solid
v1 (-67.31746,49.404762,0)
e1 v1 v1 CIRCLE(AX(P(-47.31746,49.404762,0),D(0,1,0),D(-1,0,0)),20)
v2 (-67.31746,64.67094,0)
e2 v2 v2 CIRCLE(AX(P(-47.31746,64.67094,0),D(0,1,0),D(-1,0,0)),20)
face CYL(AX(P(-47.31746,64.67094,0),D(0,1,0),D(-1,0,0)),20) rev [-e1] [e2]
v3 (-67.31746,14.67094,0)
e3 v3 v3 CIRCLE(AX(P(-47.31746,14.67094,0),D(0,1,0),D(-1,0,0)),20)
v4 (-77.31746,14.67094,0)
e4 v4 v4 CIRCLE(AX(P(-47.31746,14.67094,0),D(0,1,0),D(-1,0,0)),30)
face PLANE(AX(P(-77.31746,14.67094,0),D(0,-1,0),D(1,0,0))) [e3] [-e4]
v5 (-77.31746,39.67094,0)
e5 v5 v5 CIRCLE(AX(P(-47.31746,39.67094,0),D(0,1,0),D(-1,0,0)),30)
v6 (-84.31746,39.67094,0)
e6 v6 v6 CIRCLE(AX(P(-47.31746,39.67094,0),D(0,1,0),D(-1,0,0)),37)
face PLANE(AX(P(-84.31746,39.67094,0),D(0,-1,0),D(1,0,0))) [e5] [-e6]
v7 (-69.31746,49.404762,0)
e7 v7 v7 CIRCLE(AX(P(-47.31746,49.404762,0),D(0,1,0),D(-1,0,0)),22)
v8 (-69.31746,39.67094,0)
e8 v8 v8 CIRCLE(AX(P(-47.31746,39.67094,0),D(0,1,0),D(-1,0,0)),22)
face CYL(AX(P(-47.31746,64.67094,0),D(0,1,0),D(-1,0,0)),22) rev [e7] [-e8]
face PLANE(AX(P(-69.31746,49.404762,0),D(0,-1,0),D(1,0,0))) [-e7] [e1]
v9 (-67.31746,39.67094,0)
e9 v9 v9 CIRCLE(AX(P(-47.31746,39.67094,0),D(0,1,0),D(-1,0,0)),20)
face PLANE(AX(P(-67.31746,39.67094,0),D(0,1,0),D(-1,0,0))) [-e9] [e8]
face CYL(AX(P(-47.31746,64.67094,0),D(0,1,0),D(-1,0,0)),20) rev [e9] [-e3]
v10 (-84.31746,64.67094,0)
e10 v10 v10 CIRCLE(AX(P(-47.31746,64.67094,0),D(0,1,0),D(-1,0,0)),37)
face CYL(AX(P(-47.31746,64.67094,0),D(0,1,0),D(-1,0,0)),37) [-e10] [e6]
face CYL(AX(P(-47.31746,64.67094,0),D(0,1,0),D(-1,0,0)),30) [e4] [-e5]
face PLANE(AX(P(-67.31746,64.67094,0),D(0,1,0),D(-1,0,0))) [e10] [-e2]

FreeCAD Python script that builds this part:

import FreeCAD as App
import Part
import Sketcher
Q = App.Units.Quantity

doc = App.newDocument("Part")
body = doc.addObject("PartDesign::Body", "Body")

sketch1 = doc.addObject("Sketcher::SketchObject", "Sketch")
body.addObject(sketch1)
sketch1.AttachmentSupport = (doc.XY_Plane, [""])
sketch1.MapMode = "FlatFace"
sketch1.addGeometry(Part.LineSegment(App.Vector(-84.3, 64.7, 0), App.Vector(-84.3, 39.7, 0)), False)
sketch1.addGeometry(Part.LineSegment(App.Vector(-84.3, 39.7, 0), App.Vector(-77.3, 39.7, 0)), False)
sketch1.addGeometry(Part.LineSegment(App.Vector(-77.3, 39.7, 0), App.Vector(-77.3, 14.7, 0)), False)
sketch1.addGeometry(Part.LineSegment(App.Vector(-77.3, 14.7, 0), App.Vector(-67.3, 14.7, 0)), False)
sketch1.addGeometry(Part.LineSegment(App.Vector(-67.3, 14.7, 0), App.Vector(-67.3, 39.7, 0)), False)
sketch1.addGeometry(Part.LineSegment(App.Vector(-67.3, 39.7, 0), App.Vector(-69.3, 39.7, 0)), False)
sketch1.addGeometry(Part.LineSegment(App.Vector(-69.3, 39.7, 0), App.Vector(-69.3, 49.4, 0)), False)
sketch1.addGeometry(Part.LineSegment(App.Vector(-69.3, 49.4, 0), App.Vector(-67.3, 49.4, 0)), False)
sketch1.addGeometry(Part.LineSegment(App.Vector(-67.3, 49.4, 0), App.Vector(-67.3, 64.7, 0)), False)
sketch1.addGeometry(Part.LineSegment(App.Vector(-67.3, 64.7, 0), App.Vector(-84.3, 64.7, 0)), False)
sketch1.addGeometry(Part.LineSegment(App.Vector(-47.3, 64.7, 0), App.Vector(-47.3, 14.7, 0)), True)
sketch1.addConstraint(Sketcher.Constraint("Coincident", 0, 2, 1, 1))
sketch1.addConstraint(Sketcher.Constraint("Coincident", 1, 2, 2, 1))
sketch1.addConstraint(Sketcher.Constraint("Coincident", 2, 2, 3, 1))
sketch1.addConstraint(Sketcher.Constraint("Coincident", 3, 2, 4, 1))
sketch1.addConstraint(Sketcher.Constraint("Coincident", 4, 2, 5, 1))
sketch1.addConstraint(Sketcher.Constraint("Coincident", 5, 2, 6, 1))
sketch1.addConstraint(Sketcher.Constraint("Coincident", 6, 2, 7, 1))
sketch1.addConstraint(Sketcher.Constraint("Coincident", 7, 2, 8, 1))
sketch1.addConstraint(Sketcher.Constraint("Coincident", 8, 2, 9, 1))
sketch1.addConstraint(Sketcher.Constraint("Coincident", 9, 2, 0, 1))
sketch1.addConstraint(Sketcher.Constraint("Vertical", 0))
sketch1.addConstraint(Sketcher.Constraint("Horizontal", 1))
sketch1.addConstraint(Sketcher.Constraint("Vertical", 2))
sketch1.addConstraint(Sketcher.Constraint("Horizontal", 3))
sketch1.addConstraint(Sketcher.Constraint("Vertical", 4))
sketch1.addConstraint(Sketcher.Constraint("Horizontal", 5))
sketch1.addConstraint(Sketcher.Constraint("Vertical", 6))
sketch1.addConstraint(Sketcher.Constraint("Horizontal", 7))
sketch1.addConstraint(Sketcher.Constraint("Vertical", 8))
sketch1.addConstraint(Sketcher.Constraint("Horizontal", 9))
sketch1.addConstraint(Sketcher.Constraint("Vertical", 10))
sketch1.addConstraint(Sketcher.Constraint("Horizontal", 1, 2, 4, 2))
sketch1.addConstraint(Sketcher.Constraint("Horizontal", 9, 2, 10, 1))
sketch1.addConstraint(Sketcher.Constraint("Horizontal", 3, 2, 10, 2))
sketch1.addConstraint(Sketcher.Constraint("Vertical", 4, 2, 7, 2))
sketch1.addConstraint(Sketcher.Constraint("Equal", 0, 2))
sketch1.addConstraint(Sketcher.Constraint("DistanceX", 1, 1, 1, 2, Q("7 mm")))
sketch1.addConstraint(Sketcher.Constraint("DistanceX", 3, 1, 3, 2, Q("10 mm")))
sketch1.addConstraint(Sketcher.Constraint("DistanceX", 5, 2, 5, 1, Q("2 mm")))
sketch1.addConstraint(Sketcher.Constraint("DistanceY", 0, 2, 0, 1, Q("25 mm")))
sketch1.addConstraint(Sketcher.Constraint("DistanceX", 8, 2, 10, 1, Q("20 mm")))
sketch1.addConstraint(Sketcher.Constraint("DistanceY", 6, 1, 6, 2, Q("9.733822 mm")))
sketch1.addConstraint(Sketcher.Constraint("DistanceX", 0, 2, -1, 1, Q("84.31746 mm")))
sketch1.addConstraint(Sketcher.Constraint("DistanceY", -1, 1, 0, 2, Q("39.67094 mm")))
revolution = doc.addObject("PartDesign::Revolution", "Revolution")
body.addObject(revolution)
revolution.Profile = sketch1
revolution.ReferenceAxis = (sketch1, ["Axis0"])
revolution.Angle = 360

doc.recompute()
